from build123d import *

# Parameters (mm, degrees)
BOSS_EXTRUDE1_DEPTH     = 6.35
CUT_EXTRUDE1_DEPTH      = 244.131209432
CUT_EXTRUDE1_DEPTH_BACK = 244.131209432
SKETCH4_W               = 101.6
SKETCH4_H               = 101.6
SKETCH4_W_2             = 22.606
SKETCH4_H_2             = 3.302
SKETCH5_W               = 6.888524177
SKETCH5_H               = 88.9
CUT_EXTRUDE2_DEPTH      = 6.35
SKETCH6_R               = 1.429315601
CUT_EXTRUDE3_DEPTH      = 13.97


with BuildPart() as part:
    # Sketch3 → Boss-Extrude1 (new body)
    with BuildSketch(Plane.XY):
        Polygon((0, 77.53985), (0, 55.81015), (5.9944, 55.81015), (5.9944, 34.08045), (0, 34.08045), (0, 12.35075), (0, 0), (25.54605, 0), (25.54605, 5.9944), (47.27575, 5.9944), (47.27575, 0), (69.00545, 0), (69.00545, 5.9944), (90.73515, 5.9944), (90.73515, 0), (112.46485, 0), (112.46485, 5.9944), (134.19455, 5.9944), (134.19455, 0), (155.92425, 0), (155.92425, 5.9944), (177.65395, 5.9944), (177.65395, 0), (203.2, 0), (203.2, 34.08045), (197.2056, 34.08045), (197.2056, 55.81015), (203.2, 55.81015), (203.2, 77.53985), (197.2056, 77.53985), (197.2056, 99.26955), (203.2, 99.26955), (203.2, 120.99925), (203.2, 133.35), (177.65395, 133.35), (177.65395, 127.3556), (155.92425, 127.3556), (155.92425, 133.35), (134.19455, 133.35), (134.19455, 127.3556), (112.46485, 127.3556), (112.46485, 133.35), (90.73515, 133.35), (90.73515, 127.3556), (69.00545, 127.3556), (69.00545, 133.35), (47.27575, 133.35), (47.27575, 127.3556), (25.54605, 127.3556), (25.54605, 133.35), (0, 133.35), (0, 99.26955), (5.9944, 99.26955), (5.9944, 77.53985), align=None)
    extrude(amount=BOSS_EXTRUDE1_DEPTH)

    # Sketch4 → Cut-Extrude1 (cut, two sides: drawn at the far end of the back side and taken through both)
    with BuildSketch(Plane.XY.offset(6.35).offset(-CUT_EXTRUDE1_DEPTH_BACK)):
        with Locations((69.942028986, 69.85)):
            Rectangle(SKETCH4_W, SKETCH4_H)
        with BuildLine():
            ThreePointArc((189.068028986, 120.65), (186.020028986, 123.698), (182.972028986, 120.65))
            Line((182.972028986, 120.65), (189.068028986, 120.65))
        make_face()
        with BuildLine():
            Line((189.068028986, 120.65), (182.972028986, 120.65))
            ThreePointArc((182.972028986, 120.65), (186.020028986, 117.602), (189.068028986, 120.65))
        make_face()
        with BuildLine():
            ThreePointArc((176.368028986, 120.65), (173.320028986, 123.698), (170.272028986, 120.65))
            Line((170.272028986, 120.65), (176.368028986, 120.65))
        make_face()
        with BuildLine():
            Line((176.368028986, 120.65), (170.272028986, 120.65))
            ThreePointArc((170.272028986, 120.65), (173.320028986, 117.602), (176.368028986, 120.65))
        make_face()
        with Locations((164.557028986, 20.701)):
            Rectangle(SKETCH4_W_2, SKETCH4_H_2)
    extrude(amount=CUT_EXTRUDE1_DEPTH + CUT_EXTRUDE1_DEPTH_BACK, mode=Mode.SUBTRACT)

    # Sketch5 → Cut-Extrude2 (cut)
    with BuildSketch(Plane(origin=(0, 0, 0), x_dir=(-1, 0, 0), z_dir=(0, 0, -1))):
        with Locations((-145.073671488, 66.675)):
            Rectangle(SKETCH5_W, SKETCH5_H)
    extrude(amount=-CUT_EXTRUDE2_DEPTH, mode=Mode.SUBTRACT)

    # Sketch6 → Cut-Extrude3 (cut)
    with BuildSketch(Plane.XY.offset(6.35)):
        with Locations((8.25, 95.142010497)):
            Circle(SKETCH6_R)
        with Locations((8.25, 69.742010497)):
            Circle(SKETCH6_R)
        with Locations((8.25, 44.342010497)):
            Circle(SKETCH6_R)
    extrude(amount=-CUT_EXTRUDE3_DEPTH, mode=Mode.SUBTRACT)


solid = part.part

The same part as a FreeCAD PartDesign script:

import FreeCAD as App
import Part
import Sketcher
Q = App.Units.Quantity

doc = App.newDocument("Part")
body = doc.addObject("PartDesign::Body", "Body")

# Sketch on XY plane
sketch1 = body.newObject("Sketcher::SketchObject", "Sketch")
sketch1.AttachmentSupport = (doc.getObject("XY_Plane"), [""])
sketch1.MapMode = "FlatFace"
sketch1.addGeometry([
    Part.LineSegment(App.Vector(0, 78, 0), App.Vector(0, 56, 0)),  # 0
    Part.LineSegment(App.Vector(0, 56, 0), App.Vector(6, 56, 0)),  # 1
    Part.LineSegment(App.Vector(6, 56, 0), App.Vector(6, 34, 0)),  # 2
    Part.LineSegment(App.Vector(6, 34, 0), App.Vector(0, 34, 0)),  # 3
    Part.LineSegment(App.Vector(0, 34, 0), App.Vector(0, 0, 0)),  # 4
    Part.LineSegment(App.Vector(0, 0, 0), App.Vector(26, 0, 0)),  # 5
    Part.LineSegment(App.Vector(26, 0, 0), App.Vector(26, 6, 0)),  # 6
    Part.LineSegment(App.Vector(26, 6, 0), App.Vector(47, 6, 0)),  # 7
    Part.LineSegment(App.Vector(47, 6, 0), App.Vector(47, 0, 0)),  # 8
    Part.LineSegment(App.Vector(47, 0, 0), App.Vector(69, 0, 0)),  # 9
    Part.LineSegment(App.Vector(69, 0, 0), App.Vector(69, 6, 0)),  # 10
    Part.LineSegment(App.Vector(69, 6, 0), App.Vector(91, 6, 0)),  # 11
    Part.LineSegment(App.Vector(91, 6, 0), App.Vector(91, 0, 0)),  # 12
    Part.LineSegment(App.Vector(91, 0, 0), App.Vector(112, 0, 0)),  # 13
    Part.LineSegment(App.Vector(112, 0, 0), App.Vector(112, 6, 0)),  # 14
    Part.LineSegment(App.Vector(112, 6, 0), App.Vector(134, 6, 0)),  # 15
    Part.LineSegment(App.Vector(134, 6, 0), App.Vector(134, 0, 0)),  # 16
    Part.LineSegment(App.Vector(134, 0, 0), App.Vector(156, 0, 0)),  # 17
    Part.LineSegment(App.Vector(156, 0, 0), App.Vector(156, 6, 0)),  # 18
    Part.LineSegment(App.Vector(156, 6, 0), App.Vector(178, 6, 0)),  # 19
    Part.LineSegment(App.Vector(178, 6, 0), App.Vector(178, 0, 0)),  # 20
    Part.LineSegment(App.Vector(178, 0, 0), App.Vector(203, 0, 0)),  # 21
    Part.LineSegment(App.Vector(203, 0, 0), App.Vector(203, 34, 0)),  # 22
    Part.LineSegment(App.Vector(203, 34, 0), App.Vector(197, 34, 0)),  # 23
    Part.LineSegment(App.Vector(197, 34, 0), App.Vector(197, 56, 0)),  # 24
    Part.LineSegment(App.Vector(197, 56, 0), App.Vector(203, 56, 0)),  # 25
    Part.LineSegment(App.Vector(203, 56, 0), App.Vector(203, 78, 0)),  # 26
    Part.LineSegment(App.Vector(203, 78, 0), App.Vector(197, 78, 0)),  # 27
    Part.LineSegment(App.Vector(197, 78, 0), App.Vector(197, 99, 0)),  # 28
    Part.LineSegment(App.Vector(197, 99, 0), App.Vector(203, 99, 0)),  # 29
    Part.LineSegment(App.Vector(203, 99, 0), App.Vector(203, 133, 0)),  # 30
    Part.LineSegment(App.Vector(203, 133, 0), App.Vector(178, 133, 0)),  # 31
    Part.LineSegment(App.Vector(178, 133, 0), App.Vector(178, 127, 0)),  # 32
    Part.LineSegment(App.Vector(178, 127, 0), App.Vector(156, 127, 0)),  # 33
    Part.LineSegment(App.Vector(156, 127, 0), App.Vector(156, 133, 0)),  # 34
    Part.LineSegment(App.Vector(156, 133, 0), App.Vector(134, 133, 0)),  # 35
    Part.LineSegment(App.Vector(134, 133, 0), App.Vector(134, 127, 0)),  # 36
    Part.LineSegment(App.Vector(134, 127, 0), App.Vector(112, 127, 0)),  # 37
    Part.LineSegment(App.Vector(112, 127, 0), App.Vector(112, 133, 0)),  # 38
    Part.LineSegment(App.Vector(112, 133, 0), App.Vector(91, 133, 0)),  # 39
    Part.LineSegment(App.Vector(91, 133, 0), App.Vector(91, 127, 0)),  # 40
    Part.LineSegment(App.Vector(91, 127, 0), App.Vector(69, 127, 0)),  # 41
    Part.LineSegment(App.Vector(69, 127, 0), App.Vector(69, 133, 0)),  # 42
    Part.LineSegment(App.Vector(69, 133, 0), App.Vector(47, 133, 0)),  # 43
    Part.LineSegment(App.Vector(47, 133, 0), App.Vector(47, 127, 0)),  # 44
    Part.LineSegment(App.Vector(47, 127, 0), App.Vector(26, 127, 0)),  # 45
    Part.LineSegment(App.Vector(26, 127, 0), App.Vector(26, 133, 0)),  # 46
    Part.LineSegment(App.Vector(26, 133, 0), App.Vector(0, 133, 0)),  # 47
    Part.LineSegment(App.Vector(0, 133, 0), App.Vector(0, 99, 0)),  # 48
    Part.LineSegment(App.Vector(0, 99, 0), App.Vector(6, 99, 0)),  # 49
    Part.LineSegment(App.Vector(6, 99, 0), App.Vector(6, 78, 0)),  # 50
    Part.LineSegment(App.Vector(6, 78, 0), App.Vector(0, 78, 0)),  # 51
], False)
sketch1.addConstraint([
    Sketcher.Constraint("Coincident", 0, 2, 1, 1),
    Sketcher.Constraint("Coincident", 1, 2, 2, 1),
    Sketcher.Constraint("Coincident", 2, 2, 3, 1),
    Sketcher.Constraint("Coincident", 3, 2, 4, 1),
    Sketcher.Constraint("Coincident", 4, 2, 5, 1),
    Sketcher.Constraint("Coincident", 5, 2, 6, 1),
    Sketcher.Constraint("Coincident", 6, 2, 7, 1),
    Sketcher.Constraint("Coincident", 7, 2, 8, 1),
    Sketcher.Constraint("Coincident", 8, 2, 9, 1),
    Sketcher.Constraint("Coincident", 9, 2, 10, 1),
    Sketcher.Constraint("Coincident", 10, 2, 11, 1),
    Sketcher.Constraint("Coincident", 11, 2, 12, 1),
    Sketcher.Constraint("Coincident", 12, 2, 13, 1),
    Sketcher.Constraint("Coincident", 13, 2, 14, 1),
    Sketcher.Constraint("Coincident", 14, 2, 15, 1),
    Sketcher.Constraint("Coincident", 15, 2, 16, 1),
    Sketcher.Constraint("Coincident", 16, 2, 17, 1),
    Sketcher.Constraint("Coincident", 17, 2, 18, 1),
    Sketcher.Constraint("Coincident", 18, 2, 19, 1),
    Sketcher.Constraint("Coincident", 19, 2, 20, 1),
    Sketcher.Constraint("Coincident", 20, 2, 21, 1),
    Sketcher.Constraint("Coincident", 21, 2, 22, 1),
    Sketcher.Constraint("Coincident", 22, 2, 23, 1),
    Sketcher.Constraint("Coincident", 23, 2, 24, 1),
    Sketcher.Constraint("Coincident", 24, 2, 25, 1),
    Sketcher.Constraint("Coincident", 25, 2, 26, 1),
    Sketcher.Constraint("Coincident", 26, 2, 27, 1),
    Sketcher.Constraint("Coincident", 27, 2, 28, 1),
    Sketcher.Constraint("Coincident", 28, 2, 29, 1),
    Sketcher.Constraint("Coincident", 29, 2, 30, 1),
    Sketcher.Constraint("Coincident", 30, 2, 31, 1),
    Sketcher.Constraint("Coincident", 31, 2, 32, 1),
    Sketcher.Constraint("Coincident", 32, 2, 33, 1),
    Sketcher.Constraint("Coincident", 33, 2, 34, 1),
    Sketcher.Constraint("Coincident", 34, 2, 35, 1),
    Sketcher.Constraint("Coincident", 35, 2, 36, 1),
    Sketcher.Constraint("Coincident", 36, 2, 37, 1),
    Sketcher.Constraint("Coincident", 37, 2, 38, 1),
    Sketcher.Constraint("Coincident", 38, 2, 39, 1),
    Sketcher.Constraint("Coincident", 39, 2, 40, 1),
    Sketcher.Constraint("Coincident", 40, 2, 41, 1),
    Sketcher.Constraint("Coincident", 41, 2, 42, 1),
    Sketcher.Constraint("Coincident", 42, 2, 43, 1),
    Sketcher.Constraint("Coincident", 43, 2, 44, 1),
    Sketcher.Constraint("Coincident", 44, 2, 45, 1),
    Sketcher.Constraint("Coincident", 45, 2, 46, 1),
    Sketcher.Constraint("Coincident", 46, 2, 47, 1),
    Sketcher.Constraint("Coincident", 47, 2, 48, 1),
    Sketcher.Constraint("Coincident", 48, 2, 49, 1),
    Sketcher.Constraint("Coincident", 49, 2, 50, 1),
    Sketcher.Constraint("Coincident", 50, 2, 51, 1),
    Sketcher.Constraint("Coincident", 51, 2, 0, 1),
    Sketcher.Constraint("Vertical", 0),
    Sketcher.Constraint("Horizontal", 1),
    Sketcher.Constraint("Vertical", 2),
    Sketcher.Constraint("Horizontal", 3),
    Sketcher.Constraint("Vertical", 4),
    Sketcher.Constraint("Horizontal", 5),
    Sketcher.Constraint("Vertical", 6),
    Sketcher.Constraint("Horizontal", 7),
    Sketcher.Constraint("Vertical", 8),
    Sketcher.Constraint("Horizontal", 9),
    Sketcher.Constraint("Vertical", 10),
    Sketcher.Constraint("Horizontal", 11),
    Sketcher.Constraint("Vertical", 12),
    Sketcher.Constraint("Horizontal", 13),
    Sketcher.Constraint("Vertical", 14),
    Sketcher.Constraint("Horizontal", 15),
    Sketcher.Constraint("Vertical", 16),
    Sketcher.Constraint("Horizontal", 17),
    Sketcher.Constraint("Vertical", 18),
    Sketcher.Constraint("Horizontal", 19),
    Sketcher.Constraint("Vertical", 20),
    Sketcher.Constraint("Horizontal", 21),
    Sketcher.Constraint("Vertical", 22),
    Sketcher.Constraint("Horizontal", 23),
    Sketcher.Constraint("Vertical", 24),
    Sketcher.Constraint("Horizontal", 25),
    Sketcher.Constraint("Vertical", 26),
    Sketcher.Constraint("Horizontal", 27),
    Sketcher.Constraint("Vertical", 28),
    Sketcher.Constraint("Horizontal", 29),
    Sketcher.Constraint("Vertical", 30),
    Sketcher.Constraint("Horizontal", 31),
    Sketcher.Constraint("Vertical", 32),
    Sketcher.Constraint("Horizontal", 33),
    Sketcher.Constraint("Vertical", 34),
    Sketcher.Constraint("Horizontal", 35),
    Sketcher.Constraint("Vertical", 36),
    Sketcher.Constraint("Horizontal", 37),
    Sketcher.Constraint("Vertical", 38),
    Sketcher.Constraint("Horizontal", 39),
    Sketcher.Constraint("Vertical", 40),
    Sketcher.Constraint("Horizontal", 41),
    Sketcher.Constraint("Vertical", 42),
    Sketcher.Constraint("Horizontal", 43),
    Sketcher.Constraint("Vertical", 44),
    Sketcher.Constraint("Horizontal", 45),
    Sketcher.Constraint("Vertical", 46),
    Sketcher.Constraint("Horizontal", 47),
    Sketcher.Constraint("Vertical", 48),
    Sketcher.Constraint("Horizontal", 49),
    Sketcher.Constraint("Vertical", 50),
    Sketcher.Constraint("Horizontal", 51),
    Sketcher.Constraint("Coincident", 4, 2, -1, 1),
    Sketcher.Constraint("PointOnObject", 0, 2, -2),
    Sketcher.Constraint("PointOnObject", 8, 2, -1),
    Sketcher.Constraint("PointOnObject", 12, 2, -1),
    Sketcher.Constraint("PointOnObject", 16, 2, -1),
    Sketcher.Constraint("PointOnObject", 20, 2, -1),
    Sketcher.Constraint("PointOnObject", 47, 2, -2),
    Sketcher.Constraint("Horizontal", 7, 2, 10, 2),
    Sketcher.Constraint("Horizontal", 11, 2, 14, 2),
    Sketcher.Constraint("Horizontal", 15, 2, 18, 2),
    Sketcher.Constraint("Horizontal", 3, 2, 22, 2),
    Sketcher.Constraint("Horizontal", 1, 2, 24, 2),
    Sketcher.Constraint("Horizontal", 31, 2, 34, 2),
    Sketcher.Constraint("Horizontal", 33, 2, 36, 2),
    Sketcher.Constraint("Horizontal", 35, 2, 38, 2),
    Sketcher.Constraint("Horizontal", 37, 2, 40, 2),
    Sketcher.Constraint("Horizontal", 39, 2, 42, 2),
    Sketcher.Constraint("Horizontal", 41, 2, 44, 2),
    Sketcher.Constraint("Horizontal", 43, 2, 46, 2),
    Sketcher.Constraint("Horizontal", 29, 2, 48, 2),
    Sketcher.Constraint("Horizontal", 27, 2, 50, 2),
    Sketcher.Constraint("Vertical", 22, 2, 25, 2),
    Sketcher.Constraint("Vertical", 24, 2, 27, 2),
    Sketcher.Constraint("Vertical", 26, 2, 29, 2),
    Sketcher.Constraint("Vertical", 20, 2, 31, 2),
    Sketcher.Constraint("Vertical", 18, 2, 33, 2),
    Sketcher.Constraint("Vertical", 16, 2, 35, 2),
    Sketcher.Constraint("Vertical", 14, 2, 37, 2),
    Sketcher.Constraint("Vertical", 12, 2, 39, 2),
    Sketcher.Constraint("Vertical", 10, 2, 41, 2),
    Sketcher.Constraint("Vertical", 8, 2, 43, 2),
    Sketcher.Constraint("Vertical", 6, 2, 45, 2),
    Sketcher.Constraint("Vertical", 2, 2, 49, 2),
    Sketcher.Constraint("Equal", 7, 9),
    Sketcher.Constraint("Equal", 9, 11),
    Sketcher.Constraint("Equal", 11, 13),
    Sketcher.Constraint("Equal", 13, 15),
    Sketcher.Constraint("Equal", 15, 17),
    Sketcher.Constraint("Equal", 17, 19),
    Sketcher.Constraint("Equal", 5, 21),
    Sketcher.Constraint("Equal", 3, 23),
    Sketcher.Constraint("Equal", 45, 0),
    Sketcher.Constraint("Equal", 0, 2),
    Sketcher.Constraint("Equal", 51, 6),
    Sketcher.Constraint("Equal", 26, 28),
    Sketcher.Constraint("Equal", 22, 30),
    Sketcher.Constraint("Equal", 20, 32),
    Sketcher.Constraint("DistanceX", -1, 1, 21, 2, Q("8 in")),
    Sketcher.Constraint("DistanceX", 1, 1, 1, 2, Q("0.236 in")),
    Sketcher.Constraint("DistanceY", -1, 1, 30, 2, Q("5.25 in")),
    Sketcher.Constraint("DistanceX", 7, 1, 7, 2, Q("0.8555 in")),
])
pad1 = body.newObject("PartDesign::Pad", "Pad")
pad1.Profile = sketch1
pad1.Length = Q("0.25 in")

# Sketch on XY plane
sketch2 = body.newObject("Sketcher::SketchObject", "Sketch001")
sketch2.AttachmentSupport = (doc.getObject("XY_Plane"), [""])
sketch2.MapMode = "FlatFace"
sketch2.AttachmentOffset = App.Placement(App.Vector(0, 0, 0.25 * 25.4), App.Rotation())
sketch2.addGeometry([
    Part.LineSegment(App.Vector(19.1, 120.7, 0), App.Vector(19.1, 19.1, 0)),  # 0
    Part.LineSegment(App.Vector(19.1, 19.1, 0), App.Vector(120.7, 19.1, 0)),  # 1
    Part.LineSegment(App.Vector(120.7, 19.1, 0), App.Vector(120.7, 120.7, 0)),  # 2
    Part.LineSegment(App.Vector(120.7, 120.7, 0), App.Vector(19.1, 120.7, 0)),  # 3
    Part.Circle(App.Vector(186, 120.7, 0), App.Vector(0, 0, 1), 3),  # 4
    Part.Circle(App.Vector(173.3, 120.7, 0), App.Vector(0, 0, 1), 3),  # 5
    Part.LineSegment(App.Vector(153.3, 22.4, 0), App.Vector(153.3, 19.1, 0)),  # 6
    Part.LineSegment(App.Vector(153.3, 19.1, 0), App.Vector(175.9, 19.1, 0)),  # 7
    Part.LineSegment(App.Vector(175.9, 19.1, 0), App.Vector(175.9, 22.4, 0)),  # 8
    Part.LineSegment(App.Vector(175.9, 22.4, 0), App.Vector(153.3, 22.4, 0)),  # 9
], False)
sketch2.addConstraint([
    Sketcher.Constraint("Coincident", 0, 2, 1, 1),
    Sketcher.Constraint("Coincident", 1, 2, 2, 1),
    Sketcher.Constraint("Coincident", 2, 2, 3, 1),
    Sketcher.Constraint("Coincident", 3, 2, 0, 1),
    Sketcher.Constraint("Coincident", 6, 2, 7, 1),
    Sketcher.Constraint("Coincident", 7, 2, 8, 1),
    Sketcher.Constraint("Coincident", 8, 2, 9, 1),
    Sketcher.Constraint("Coincident", 9, 2, 6, 1),
    Sketcher.Constraint("Vertical", 0),
    Sketcher.Constraint("Horizontal", 1),
    Sketcher.Constraint("Vertical", 2),
    Sketcher.Constraint("Horizontal", 3),
    Sketcher.Constraint("Vertical", 6),
    Sketcher.Constraint("Horizontal", 7),
    Sketcher.Constraint("Vertical", 8),
    Sketcher.Constraint("Horizontal", 9),
    Sketcher.Constraint("Equal", 4, 5),
    Sketcher.Constraint("Horizontal", 4, 3, 5, 3),
    Sketcher.Constraint("Horizontal", 5, 3, 2, 2),
    Sketcher.Constraint("Horizontal", 1, 2, 6, 2),
    Sketcher.Constraint("Equal", 3, 0),
    Sketcher.Constraint("Diameter", 4, Q("0.24 in")),
    Sketcher.Constraint("DistanceX", 1, 1, 1, 2, Q("4 in")),
    Sketcher.Constraint("DistanceX", 7, 1, 7, 2, Q("0.89 in")),
    Sketcher.Constraint("DistanceY", 6, 2, 6, 1, Q("0.13 in")),
    Sketcher.Constraint("DistanceX", 5, 3, 4, 3, Q("0.5 in")),
    Sketcher.Constraint("DistanceX", 5, 3, 7, 2, Q("0.1 in")),
    Sketcher.Constraint("DistanceY", -1, 1, 4, 3, Q("4.75 in")),
    Sketcher.Constraint("DistanceX", 0, 2, 5, 3, Q("6.07 in")),
    Sketcher.Constraint("DistanceX", -1, 1, 4, 3, Q("186.020029 mm")),
])
pocket1 = body.newObject("PartDesign::Pocket", "Pocket")
pocket1.Profile = sketch2
pocket1.Type = "ThroughAll"
pocket1.Midplane = True

# Sketch on XY plane
sketch3 = body.newObject("Sketcher::SketchObject", "Sketch002")
sketch3.AttachmentSupport = (doc.getObject("XY_Plane"), [""])
sketch3.MapMode = "FlatFace"
sketch3.addGeometry([
    Part.LineSegment(App.Vector(149, 111, 0), App.Vector(149, 22, 0)),
    Part.LineSegment(App.Vector(149, 22, 0), App.Vector(142, 22, 0)),
    Part.LineSegment(App.Vector(142, 22, 0), App.Vector(142, 111, 0)),
    Part.LineSegment(App.Vector(142, 111, 0), App.Vector(149, 111, 0)),
], False)
sketch3.addConstraint([
    Sketcher.Constraint("Coincident", 0, 2, 1, 1),
    Sketcher.Constraint("Coincident", 1, 2, 2, 1),
    Sketcher.Constraint("Coincident", 2, 2, 3, 1),
    Sketcher.Constraint("Coincident", 3, 2, 0, 1),
    Sketcher.Constraint("Vertical", 0),
    Sketcher.Constraint("Horizontal", 1),
    Sketcher.Constraint("Vertical", 2),
    Sketcher.Constraint("Horizontal", 3),
    Sketcher.Constraint("DistanceY", 0, 2, 0, 1, Q("3.5 in")),
    Sketcher.Constraint("DistanceY", -1, 1, 0, 2, Q("0.875 in")),
    Sketcher.Constraint("DistanceX", 1, 2, 1, 1, Q("6.888524 mm")),
    Sketcher.Constraint("DistanceX", -1, 1, 1, 2, Q("141.629409 mm")),
])
pocket2 = body.newObject("PartDesign::Pocket", "Pocket001")
pocket2.Profile = sketch3
pocket2.Length = Q("0.25 in")
pocket2.Reversed = True

# Sketch on XY plane
sketch4 = body.newObject("Sketcher::SketchObject", "Sketch003")
sketch4.AttachmentSupport = (doc.getObject("XY_Plane"), [""])
sketch4.MapMode = "FlatFace"
sketch4.AttachmentOffset = App.Placement(App.Vector(0, 0, 0.25 * 25.4), App.Rotation())
sketch4.addGeometry([
    Part.Circle(App.Vector(8.2, 95.1, 0), App.Vector(0, 0, 1), 1.4),
    Part.Circle(App.Vector(8.2, 69.7, 0), App.Vector(0, 0, 1), 1.4),
    Part.Circle(App.Vector(8.2, 44.3, 0), App.Vector(0, 0, 1), 1.4),
], False)
sketch4.addConstraint([
    Sketcher.Constraint("Equal", 0, 1),
    Sketcher.Constraint("Equal", 1, 2),
    Sketcher.Constraint("Vertical", 0, 3, 1, 3),
    Sketcher.Constraint("Vertical", 1, 3, 2, 3),
    Sketcher.Constraint("DistanceY", 1, 3, 0, 3, Q("1 in")),
    Sketcher.Constraint("DistanceY", 2, 3, 1, 3, Q("1 in")),
    Sketcher.Constraint("Diameter", 0, Q("2.858631 mm")),
    Sketcher.Constraint("DistanceX", -1, 1, 0, 3, Q("8.25 mm")),
    Sketcher.Constraint("DistanceY", -1, 1, 0, 3, Q("95.14201 mm")),
])
pocket3 = body.newObject("PartDesign::Pocket", "Pocket002")
pocket3.Profile = sketch4
pocket3.Length = Q("0.55 in")

doc.recompute()
